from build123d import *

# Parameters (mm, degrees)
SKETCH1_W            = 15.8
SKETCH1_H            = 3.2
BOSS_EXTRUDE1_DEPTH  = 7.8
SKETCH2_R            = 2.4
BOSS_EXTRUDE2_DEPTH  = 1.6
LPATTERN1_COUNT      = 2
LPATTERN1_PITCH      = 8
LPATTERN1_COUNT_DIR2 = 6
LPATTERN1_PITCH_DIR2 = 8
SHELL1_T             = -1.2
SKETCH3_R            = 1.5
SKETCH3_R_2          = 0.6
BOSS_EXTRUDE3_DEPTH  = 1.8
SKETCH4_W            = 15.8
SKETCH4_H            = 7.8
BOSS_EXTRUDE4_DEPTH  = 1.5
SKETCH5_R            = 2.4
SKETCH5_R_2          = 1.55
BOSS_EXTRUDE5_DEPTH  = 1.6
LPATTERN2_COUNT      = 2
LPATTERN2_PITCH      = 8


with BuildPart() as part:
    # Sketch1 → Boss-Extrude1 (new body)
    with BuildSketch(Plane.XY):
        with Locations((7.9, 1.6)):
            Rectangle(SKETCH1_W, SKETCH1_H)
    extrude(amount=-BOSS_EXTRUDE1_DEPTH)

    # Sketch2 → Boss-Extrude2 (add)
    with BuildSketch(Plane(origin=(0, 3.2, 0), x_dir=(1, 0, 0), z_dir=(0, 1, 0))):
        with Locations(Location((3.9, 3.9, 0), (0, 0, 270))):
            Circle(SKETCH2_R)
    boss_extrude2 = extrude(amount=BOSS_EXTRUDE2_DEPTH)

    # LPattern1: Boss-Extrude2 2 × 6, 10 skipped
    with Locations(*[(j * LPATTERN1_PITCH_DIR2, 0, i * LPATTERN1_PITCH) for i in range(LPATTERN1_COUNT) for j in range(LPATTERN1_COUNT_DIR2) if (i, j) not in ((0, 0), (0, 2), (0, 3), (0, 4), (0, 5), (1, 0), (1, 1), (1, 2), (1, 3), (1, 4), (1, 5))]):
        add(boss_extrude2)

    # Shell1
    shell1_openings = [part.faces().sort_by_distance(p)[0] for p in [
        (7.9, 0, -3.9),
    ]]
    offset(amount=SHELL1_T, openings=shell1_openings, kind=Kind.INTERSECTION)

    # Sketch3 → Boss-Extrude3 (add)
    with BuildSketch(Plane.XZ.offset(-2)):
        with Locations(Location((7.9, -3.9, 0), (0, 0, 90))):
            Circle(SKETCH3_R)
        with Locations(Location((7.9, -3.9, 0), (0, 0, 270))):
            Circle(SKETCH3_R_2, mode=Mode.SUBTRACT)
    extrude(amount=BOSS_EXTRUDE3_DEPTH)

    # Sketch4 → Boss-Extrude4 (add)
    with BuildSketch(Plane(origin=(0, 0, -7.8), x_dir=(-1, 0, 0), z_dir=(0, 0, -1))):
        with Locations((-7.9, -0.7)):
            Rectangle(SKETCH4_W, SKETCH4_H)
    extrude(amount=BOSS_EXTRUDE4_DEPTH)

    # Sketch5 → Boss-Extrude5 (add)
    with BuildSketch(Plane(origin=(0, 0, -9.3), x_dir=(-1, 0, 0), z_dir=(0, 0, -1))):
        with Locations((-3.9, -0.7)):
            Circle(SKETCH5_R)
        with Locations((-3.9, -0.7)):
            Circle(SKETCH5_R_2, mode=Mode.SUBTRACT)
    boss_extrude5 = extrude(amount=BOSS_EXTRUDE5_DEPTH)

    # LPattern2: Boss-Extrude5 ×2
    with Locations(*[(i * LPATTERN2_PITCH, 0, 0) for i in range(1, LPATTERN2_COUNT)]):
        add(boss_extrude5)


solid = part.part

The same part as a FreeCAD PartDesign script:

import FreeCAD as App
import Part
import Sketcher
Q = App.Units.Quantity


def faces_at(feature, points):
    """Names of the faces that lie closest to the given points."""
    faces = feature.Shape.Faces
    near = lambda p: min(range(len(faces)), key=lambda i: faces[i].distToShape(Part.Vertex(*p))[0])
    return sorted({f"Face{near(p) + 1}" for p in points})


def add_polygon(sketch, points):
    """Adds a closed chain of lines whose ends are joined by coincident constraints."""
    first, n = sketch.GeometryCount, len(points)
    for a, b in zip(points, points[1:] + points[:1]):
        sketch.addGeometry(Part.LineSegment(App.Vector(*a, 0), App.Vector(*b, 0)), False)
    for i in range(n):
        sketch.addConstraint(Sketcher.Constraint("Coincident", first + i, 2, first + (i + 1) % n, 1))

doc = App.newDocument("Part")
params = doc.addObject("Spreadsheet::Sheet", "Params")
for row, (alias, value) in enumerate([
    ("sketch1_width", "15.8 mm"),
    ("sketch1_height", "3.2 mm"),
    ("pad1_length", "7.8 mm"),
    ("sketch2_diameter", "4.8 mm"),
    ("pad2_length", "1.6 mm"),
    ("linearpattern_pitch", "8 mm"),
    ("thickness_wall", "1.2 mm"),
    ("sketch3_diameter", "3 mm"),
    ("sketch3_diameter2", "1.2 mm"),
    ("pad3_length", "1.8 mm"),
    ("sketch4_width", "15.8 mm"),
    ("sketch4_height", "7.8 mm"),
    ("pad4_length", "1.5 mm"),
    ("sketch5_diameter", "4.8 mm"),
    ("sketch5_diameter2", "3.1 mm"),
    ("pad5_length", "1.6 mm"),
    ("linearpattern2_pitch", "8 mm"),
], start=1):
    params.set(f"A{row}", alias)
    params.set(f"B{row}", "=" + value)
    params.setAlias(f"B{row}", alias)

body = doc.addObject("PartDesign::Body", "Body")

sketch1 = body.newObject("Sketcher::SketchObject", "Sketch")
sketch1.AttachmentSupport = (doc.getObject("XY_Plane"), [""])
sketch1.MapMode = "FlatFace"
add_polygon(sketch1, [(0, 3.2), (0, 0), (15.8, 0), (15.8, 3.2)])
sketch1.addConstraint([
    Sketcher.Constraint("Vertical", 0),
    Sketcher.Constraint("Horizontal", 1),
    Sketcher.Constraint("Vertical", 2),
    Sketcher.Constraint("Horizontal", 3),
    Sketcher.Constraint("Coincident", 0, 2, -1, 1),
    Sketcher.Constraint("DistanceX", 1, 1, 1, 2, Q("15.8 mm")),
    Sketcher.Constraint("DistanceY", 0, 2, 0, 1, Q("3.2 mm")),
])
sketch1.setExpression("Constraints[9]", "Params.sketch1_width")
sketch1.setExpression("Constraints[10]", "Params.sketch1_height")
pad1 = body.newObject("PartDesign::Pad", "Pad")
pad1.Profile = sketch1
pad1.setExpression("Length", "Params.pad1_length")
pad1.Reversed = True

sketch2 = body.newObject("Sketcher::SketchObject", "Sketch001")
sketch2.AttachmentSupport = (doc.getObject("XZ_Plane"), [""])
sketch2.MapMode = "FlatFace"
sketch2.AttachmentOffset = App.Placement(App.Vector(0, 0, -3.2), App.Rotation())
sketch2.addGeometry(Part.Circle(App.Vector(3.9, -3.9, 0), App.Vector(0, 0, 1), 2.4), False)
sketch2.addConstraint([
    Sketcher.Constraint("Diameter", 0, Q("4.8 mm")),
    Sketcher.Constraint("DistanceX", -1, 1, 0, 3, Q("3.9 mm")),
    Sketcher.Constraint("DistanceY", 0, 3, -1, 1, Q("3.9 mm")),
])
sketch2.setExpression("Constraints[0]", "Params.sketch2_diameter")
pad2 = body.newObject("PartDesign::Pad", "Pad001")
pad2.Profile = sketch2
pad2.setExpression("Length", "Params.pad2_length")
pad2.Reversed = True
doc.recompute()

linearpattern = body.newObject("PartDesign::LinearPattern", "LinearPattern")
linearpattern.Originals = [pad2]
linearpattern.Direction = (doc.getObject("X_Axis"), [""])
linearpattern.Mode = "offset"
linearpattern.setExpression("Offset", "Params.linearpattern_pitch")
linearpattern.Occurrences = 2
body.Tip = linearpattern
doc.recompute()

thickness = body.newObject("PartDesign::Thickness", "Thickness")
thickness.Base = (linearpattern, faces_at(linearpattern, [(7.9, 0, -3.9)]))
thickness.setExpression("Value", "Params.thickness_wall")
thickness.Reversed = True
thickness.Join = "Intersection"

sketch3 = body.newObject("Sketcher::SketchObject", "Sketch002")
sketch3.AttachmentSupport = (doc.getObject("XZ_Plane"), [""])
sketch3.MapMode = "FlatFace"
sketch3.AttachmentOffset = App.Placement(App.Vector(0, 0, -2), App.Rotation())
sketch3.addGeometry([
    Part.Circle(App.Vector(7.9, -3.9, 0), App.Vector(0, 0, 1), 1.5),
    Part.Circle(App.Vector(7.9, -3.9, 0), App.Vector(0, 0, 1), 0.6),
], False)
sketch3.addConstraint([
    Sketcher.Constraint("Coincident", 1, 3, 0, 3),
    Sketcher.Constraint("Diameter", 0, Q("3 mm")),
    Sketcher.Constraint("Diameter", 1, Q("1.2 mm")),
    Sketcher.Constraint("DistanceX", -1, 1, 0, 3, Q("7.9 mm")),
    Sketcher.Constraint("DistanceY", 0, 3, -1, 1, Q("3.9 mm")),
])
sketch3.setExpression("Constraints[1]", "Params.sketch3_diameter")
sketch3.setExpression("Constraints[2]", "Params.sketch3_diameter2")
pad3 = body.newObject("PartDesign::Pad", "Pad002")
pad3.Profile = sketch3
pad3.setExpression("Length", "Params.pad3_length")

sketch4 = body.newObject("Sketcher::SketchObject", "Sketch003")
sketch4.AttachmentSupport = (doc.getObject("XY_Plane"), [""])
sketch4.MapMode = "FlatFace"
sketch4.AttachmentOffset = App.Placement(App.Vector(0, 0, -7.8), App.Rotation())
add_polygon(sketch4, [(16, 3), (16, -5), (0, -5), (0, 3)])
sketch4.addConstraint([
    Sketcher.Constraint("Vertical", 0),
    Sketcher.Constraint("Horizontal", 1),
    Sketcher.Constraint("Vertical", 2),
    Sketcher.Constraint("Horizontal", 3),
    Sketcher.Constraint("PointOnObject", 1, 2, -2),
    Sketcher.Constraint("DistanceX", 1, 2, 1, 1, Q("15.8 mm")),
    Sketcher.Constraint("DistanceY", 0, 2, 0, 1, Q("7.8 mm")),
    Sketcher.Constraint("DistanceY", 0, 2, -1, 1, Q("4.6 mm")),
])
sketch4.setExpression("Constraints[9]", "Params.sketch4_width")
sketch4.setExpression("Constraints[10]", "Params.sketch4_height")
pad4 = body.newObject("PartDesign::Pad", "Pad003")
pad4.Profile = sketch4
pad4.setExpression("Length", "Params.pad4_length")
pad4.Reversed = True

sketch5 = body.newObject("Sketcher::SketchObject", "Sketch004")
sketch5.AttachmentSupport = (doc.getObject("XY_Plane"), [""])
sketch5.MapMode = "FlatFace"
sketch5.AttachmentOffset = App.Placement(App.Vector(0, 0, -9.3), App.Rotation())
sketch5.addGeometry([
    Part.Circle(App.Vector(3.9, -0.7, 0), App.Vector(0, 0, 1), 2.4),
    Part.Circle(App.Vector(3.9, -0.7, 0), App.Vector(0, 0, 1), 1.6),
], False)
sketch5.addConstraint([
    Sketcher.Constraint("Coincident", 1, 3, 0, 3),
    Sketcher.Constraint("Diameter", 0, Q("4.8 mm")),
    Sketcher.Constraint("Diameter", 1, Q("3.1 mm")),
    Sketcher.Constraint("DistanceX", -1, 1, 0, 3, Q("3.9 mm")),
    Sketcher.Constraint("DistanceY", 0, 3, -1, 1, Q("0.7 mm")),
])
sketch5.setExpression("Constraints[1]", "Params.sketch5_diameter")
sketch5.setExpression("Constraints[2]", "Params.sketch5_diameter2")
pad5 = body.newObject("PartDesign::Pad", "Pad004")
pad5.Profile = sketch5
pad5.setExpression("Length", "Params.pad5_length")
pad5.Reversed = True
doc.recompute()

linearpattern2 = body.newObject("PartDesign::LinearPattern", "LinearPattern001")
linearpattern2.Originals = [pad5]
linearpattern2.Direction = (doc.getObject("X_Axis"), [""])
linearpattern2.Mode = "offset"
linearpattern2.setExpression("Offset", "Params.linearpattern2_pitch")
linearpattern2.Occurrences = 2
body.Tip = linearpattern2

doc.recompute()
